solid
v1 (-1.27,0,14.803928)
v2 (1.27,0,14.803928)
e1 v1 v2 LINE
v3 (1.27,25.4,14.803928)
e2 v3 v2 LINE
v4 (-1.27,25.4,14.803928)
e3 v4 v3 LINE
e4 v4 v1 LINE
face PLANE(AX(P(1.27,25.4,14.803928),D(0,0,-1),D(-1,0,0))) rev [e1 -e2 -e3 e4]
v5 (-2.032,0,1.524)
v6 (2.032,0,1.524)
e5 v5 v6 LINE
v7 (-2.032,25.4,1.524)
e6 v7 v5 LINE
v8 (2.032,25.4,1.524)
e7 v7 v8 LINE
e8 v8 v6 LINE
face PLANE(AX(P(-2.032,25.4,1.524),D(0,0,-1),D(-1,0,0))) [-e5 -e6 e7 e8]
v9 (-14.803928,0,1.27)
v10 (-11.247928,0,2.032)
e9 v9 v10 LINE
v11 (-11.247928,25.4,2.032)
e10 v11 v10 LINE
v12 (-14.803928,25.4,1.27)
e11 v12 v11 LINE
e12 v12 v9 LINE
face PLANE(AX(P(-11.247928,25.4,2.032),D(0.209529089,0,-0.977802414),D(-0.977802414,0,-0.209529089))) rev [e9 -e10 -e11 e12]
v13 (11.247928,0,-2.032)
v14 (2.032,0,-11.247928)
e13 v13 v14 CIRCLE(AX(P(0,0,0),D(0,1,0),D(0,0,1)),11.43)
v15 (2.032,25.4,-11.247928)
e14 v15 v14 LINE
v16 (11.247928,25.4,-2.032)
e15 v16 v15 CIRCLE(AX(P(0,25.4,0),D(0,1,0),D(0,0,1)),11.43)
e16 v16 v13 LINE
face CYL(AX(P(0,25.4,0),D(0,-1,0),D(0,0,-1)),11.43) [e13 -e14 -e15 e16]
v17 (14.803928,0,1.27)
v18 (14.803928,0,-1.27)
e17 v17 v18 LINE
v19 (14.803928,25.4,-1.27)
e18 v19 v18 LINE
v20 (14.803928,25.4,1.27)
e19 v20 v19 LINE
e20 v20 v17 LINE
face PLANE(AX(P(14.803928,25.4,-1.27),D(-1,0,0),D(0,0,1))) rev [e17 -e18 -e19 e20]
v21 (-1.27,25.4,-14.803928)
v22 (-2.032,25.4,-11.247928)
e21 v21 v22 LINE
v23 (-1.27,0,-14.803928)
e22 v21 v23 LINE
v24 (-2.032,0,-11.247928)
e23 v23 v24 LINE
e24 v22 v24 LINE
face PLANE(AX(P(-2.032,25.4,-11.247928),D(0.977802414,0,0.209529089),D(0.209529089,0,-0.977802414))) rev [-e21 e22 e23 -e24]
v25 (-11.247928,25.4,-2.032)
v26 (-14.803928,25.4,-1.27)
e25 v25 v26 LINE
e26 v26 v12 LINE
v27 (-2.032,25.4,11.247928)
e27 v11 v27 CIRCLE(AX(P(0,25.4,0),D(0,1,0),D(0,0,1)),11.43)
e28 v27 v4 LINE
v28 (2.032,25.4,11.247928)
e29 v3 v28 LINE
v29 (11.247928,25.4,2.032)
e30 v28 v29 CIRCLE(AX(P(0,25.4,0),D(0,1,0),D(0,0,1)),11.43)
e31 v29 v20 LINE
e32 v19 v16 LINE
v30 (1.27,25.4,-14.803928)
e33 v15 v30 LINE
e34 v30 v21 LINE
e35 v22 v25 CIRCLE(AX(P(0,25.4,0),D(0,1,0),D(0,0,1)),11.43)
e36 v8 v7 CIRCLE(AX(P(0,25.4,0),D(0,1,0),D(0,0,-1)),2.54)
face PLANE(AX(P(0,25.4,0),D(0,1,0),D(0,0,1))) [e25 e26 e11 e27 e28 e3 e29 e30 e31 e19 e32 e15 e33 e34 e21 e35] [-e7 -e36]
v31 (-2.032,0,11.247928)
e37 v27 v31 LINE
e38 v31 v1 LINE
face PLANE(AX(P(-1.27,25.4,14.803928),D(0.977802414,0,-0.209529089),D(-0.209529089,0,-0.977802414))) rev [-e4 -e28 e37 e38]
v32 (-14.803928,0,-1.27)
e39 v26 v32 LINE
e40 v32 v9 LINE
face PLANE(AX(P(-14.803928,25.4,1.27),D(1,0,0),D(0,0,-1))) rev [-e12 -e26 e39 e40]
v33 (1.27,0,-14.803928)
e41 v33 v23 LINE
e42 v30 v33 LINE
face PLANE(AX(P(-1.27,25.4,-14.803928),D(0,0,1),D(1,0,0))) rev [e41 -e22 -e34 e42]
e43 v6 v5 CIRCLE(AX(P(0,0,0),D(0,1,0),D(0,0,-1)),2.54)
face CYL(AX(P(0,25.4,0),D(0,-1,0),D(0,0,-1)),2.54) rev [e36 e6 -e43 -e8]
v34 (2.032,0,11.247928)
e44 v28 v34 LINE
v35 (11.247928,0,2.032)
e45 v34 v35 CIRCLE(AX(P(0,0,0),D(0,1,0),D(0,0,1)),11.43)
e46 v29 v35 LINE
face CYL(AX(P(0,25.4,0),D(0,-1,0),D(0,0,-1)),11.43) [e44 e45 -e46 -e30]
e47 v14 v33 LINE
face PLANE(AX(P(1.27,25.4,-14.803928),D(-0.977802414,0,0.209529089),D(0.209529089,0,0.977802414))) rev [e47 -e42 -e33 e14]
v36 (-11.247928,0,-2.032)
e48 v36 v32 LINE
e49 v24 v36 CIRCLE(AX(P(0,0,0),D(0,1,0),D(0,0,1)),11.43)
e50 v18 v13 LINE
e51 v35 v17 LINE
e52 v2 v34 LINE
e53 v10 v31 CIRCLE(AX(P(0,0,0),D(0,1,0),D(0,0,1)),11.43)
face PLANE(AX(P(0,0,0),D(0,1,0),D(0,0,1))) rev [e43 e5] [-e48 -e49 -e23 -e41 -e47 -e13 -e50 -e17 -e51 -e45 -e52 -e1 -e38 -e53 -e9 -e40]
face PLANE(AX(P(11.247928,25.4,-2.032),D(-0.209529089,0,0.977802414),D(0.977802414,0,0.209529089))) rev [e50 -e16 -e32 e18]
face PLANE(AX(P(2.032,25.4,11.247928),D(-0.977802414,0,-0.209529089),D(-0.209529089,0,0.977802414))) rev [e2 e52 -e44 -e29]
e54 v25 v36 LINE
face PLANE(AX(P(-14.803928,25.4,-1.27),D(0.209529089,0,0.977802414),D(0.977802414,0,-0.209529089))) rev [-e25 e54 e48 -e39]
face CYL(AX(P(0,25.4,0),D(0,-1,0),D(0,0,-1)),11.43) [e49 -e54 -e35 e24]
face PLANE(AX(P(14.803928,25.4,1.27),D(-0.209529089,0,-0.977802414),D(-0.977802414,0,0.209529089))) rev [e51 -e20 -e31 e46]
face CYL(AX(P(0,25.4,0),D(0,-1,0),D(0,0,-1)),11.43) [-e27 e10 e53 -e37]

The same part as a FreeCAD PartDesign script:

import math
import FreeCAD as App
import Part
import Sketcher

V = App.Vector
Q = App.Units.Quantity

doc = App.newDocument("Part")
body = doc.addObject("PartDesign::Body", "Body")

sketch1 = body.newObject("Sketcher::SketchObject", "Sketch")
sketch1.AttachmentSupport = (doc.getObject("XZ_Plane"), [""])
sketch1.MapMode = "FlatFace"
sketch1.addGeometry(Part.LineSegment(V(-1.3, -14.8, 0), V(-2, -11.2, 0)), False)
sketch1.addGeometry(Part.ArcOfCircle(Part.Circle(V(0, 0, 0), V(0, 0, 1), 11.4), math.radians(-170), math.radians(-100)), False)
sketch1.addGeometry(Part.LineSegment(V(-11.2, -2, 0), V(-14.8, -1.3, 0)), False)
sketch1.addGeometry(Part.LineSegment(V(-14.8, -1.3, 0), V(-14.8, 1.3, 0)), False)
sketch1.addGeometry(Part.LineSegment(V(-14.8, 1.3, 0), V(-11.2, 2, 0)), False)
sketch1.addGeometry(Part.ArcOfCircle(Part.Circle(V(0, 0, 0), V(0, 0, 1), 11.4), math.radians(100), math.radians(170)), False)
sketch1.addGeometry(Part.LineSegment(V(-2, 11.2, 0), V(-1.3, 14.8, 0)), False)
sketch1.addGeometry(Part.LineSegment(V(-1.3, 14.8, 0), V(1.3, 14.8, 0)), False)
sketch1.addGeometry(Part.LineSegment(V(1.3, 14.8, 0), V(2, 11.2, 0)), False)
sketch1.addGeometry(Part.ArcOfCircle(Part.Circle(V(0, 0, 0), V(0, 0, 1), 11.4), math.radians(10), math.radians(80)), False)
sketch1.addGeometry(Part.LineSegment(V(11.2, 2, 0), V(14.8, 1.3, 0)), False)
sketch1.addGeometry(Part.LineSegment(V(14.8, 1.3, 0), V(14.8, -1.3, 0)), False)
sketch1.addGeometry(Part.LineSegment(V(14.8, -1.3, 0), V(11.2, -2, 0)), False)
sketch1.addGeometry(Part.ArcOfCircle(Part.Circle(V(0, 0, 0), V(0, 0, 1), 11.4), math.radians(-80), math.radians(-10)), False)
sketch1.addGeometry(Part.LineSegment(V(2, -11.2, 0), V(1.3, -14.8, 0)), False)
sketch1.addGeometry(Part.LineSegment(V(1.3, -14.8, 0), V(-1.3, -14.8, 0)), False)
sketch1.addGeometry(Part.ArcOfCircle(Part.Circle(V(0, 0, 0), V(0, 0, 1), 2.5), math.radians(143), math.radians(397)), False)
sketch1.addGeometry(Part.LineSegment(V(2, 1.5, 0), V(-2, 1.5, 0)), False)
sketch1.addConstraint(Sketcher.Constraint("Coincident", 0, 2, 1, 2))
sketch1.addConstraint(Sketcher.Constraint("Coincident", 1, 1, 2, 1))
sketch1.addConstraint(Sketcher.Constraint("Coincident", 2, 2, 3, 1))
sketch1.addConstraint(Sketcher.Constraint("Coincident", 3, 2, 4, 1))
sketch1.addConstraint(Sketcher.Constraint("Coincident", 4, 2, 5, 2))
sketch1.addConstraint(Sketcher.Constraint("Coincident", 5, 1, 6, 1))
sketch1.addConstraint(Sketcher.Constraint("Coincident", 6, 2, 7, 1))
sketch1.addConstraint(Sketcher.Constraint("Coincident", 7, 2, 8, 1))
sketch1.addConstraint(Sketcher.Constraint("Coincident", 8, 2, 9, 2))
sketch1.addConstraint(Sketcher.Constraint("Coincident", 9, 1, 10, 1))
sketch1.addConstraint(Sketcher.Constraint("Coincident", 10, 2, 11, 1))
sketch1.addConstraint(Sketcher.Constraint("Coincident", 11, 2, 12, 1))
sketch1.addConstraint(Sketcher.Constraint("Coincident", 12, 2, 13, 2))
sketch1.addConstraint(Sketcher.Constraint("Coincident", 13, 1, 14, 1))
sketch1.addConstraint(Sketcher.Constraint("Coincident", 14, 2, 15, 1))
sketch1.addConstraint(Sketcher.Constraint("Coincident", 15, 2, 0, 1))
sketch1.addConstraint(Sketcher.Constraint("Coincident", 16, 1, 17, 2))
sketch1.addConstraint(Sketcher.Constraint("Coincident", 17, 1, 16, 2))
sketch1.addConstraint(Sketcher.Constraint("Vertical", 3))
sketch1.addConstraint(Sketcher.Constraint("Horizontal", 7))
sketch1.addConstraint(Sketcher.Constraint("Vertical", 11))
sketch1.addConstraint(Sketcher.Constraint("Horizontal", 15))
sketch1.addConstraint(Sketcher.Constraint("Horizontal", 17))
sketch1.addConstraint(Sketcher.Constraint("Coincident", 1, 3, -1, 1))
sketch1.addConstraint(Sketcher.Constraint("Coincident", 5, 3, -1, 1))
sketch1.addConstraint(Sketcher.Constraint("Coincident", 9, 3, -1, 1))
sketch1.addConstraint(Sketcher.Constraint("Coincident", 13, 3, -1, 1))
sketch1.addConstraint(Sketcher.Constraint("Coincident", 16, 3, -1, 1))
sketch1.addConstraint(Sketcher.Constraint("Equal", 1, 5))
sketch1.addConstraint(Sketcher.Constraint("Equal", 5, 9))
sketch1.addConstraint(Sketcher.Constraint("Equal", 9, 13))
sketch1.addConstraint(Sketcher.Constraint("Symmetric", 2, 2, 10, 2, -1, 1))
sketch1.addConstraint(Sketcher.Constraint("Symmetric", 6, 2, 14, 2, -1, 1))
sketch1.addConstraint(Sketcher.Constraint("Perpendicular", 0, 4))
sketch1.addConstraint(Sketcher.Constraint("Perpendicular", 2, 6))
sketch1.addConstraint(Sketcher.Constraint("Perpendicular", 4, 8))
sketch1.addConstraint(Sketcher.Constraint("Perpendicular", 6, 10))
sketch1.addConstraint(Sketcher.Constraint("Perpendicular", 8, 12))
sketch1.addConstraint(Sketcher.Constraint("Perpendicular", 10, 14))
sketch1.addConstraint(Sketcher.Constraint("Horizontal", 5, 1, 8, 2))
sketch1.addConstraint(Sketcher.Constraint("Horizontal", 4, 2, 9, 1))
sketch1.addConstraint(Sketcher.Constraint("Horizontal", 3, 2, 10, 2))
sketch1.addConstraint(Sketcher.Constraint("Horizontal", 2, 2, 11, 2))
sketch1.addConstraint(Sketcher.Constraint("Horizontal", 0, 2, 13, 1))
sketch1.addConstraint(Sketcher.Constraint("Vertical", 5, 1, 16, 1))
sketch1.addConstraint(Sketcher.Constraint("Equal", 15, 3))
sketch1.addConstraint(Sketcher.Constraint("Equal", 0, 2))
sketch1.addConstraint(Sketcher.Constraint("Radius", 16, Q("0.1 in")))
sketch1.addConstraint(Sketcher.Constraint("Radius", 1, Q("0.45 in")))
sketch1.addConstraint(Sketcher.Constraint("DistanceX", 7, 1, 7, 2, Q("0.1 in")))
sketch1.addConstraint(Sketcher.Constraint("DistanceX", 17, 2, 17, 1, Q("0.16 in")))
sketch1.addConstraint(Sketcher.Constraint("DistanceX", 2, 2, 1, 1, Q("0.14 in")))
pad1 = body.newObject("PartDesign::Pad", "Pad")
pad1.Profile = sketch1
pad1.Length = Q("1 in")
pad1.Reversed = True

doc.recompute()
